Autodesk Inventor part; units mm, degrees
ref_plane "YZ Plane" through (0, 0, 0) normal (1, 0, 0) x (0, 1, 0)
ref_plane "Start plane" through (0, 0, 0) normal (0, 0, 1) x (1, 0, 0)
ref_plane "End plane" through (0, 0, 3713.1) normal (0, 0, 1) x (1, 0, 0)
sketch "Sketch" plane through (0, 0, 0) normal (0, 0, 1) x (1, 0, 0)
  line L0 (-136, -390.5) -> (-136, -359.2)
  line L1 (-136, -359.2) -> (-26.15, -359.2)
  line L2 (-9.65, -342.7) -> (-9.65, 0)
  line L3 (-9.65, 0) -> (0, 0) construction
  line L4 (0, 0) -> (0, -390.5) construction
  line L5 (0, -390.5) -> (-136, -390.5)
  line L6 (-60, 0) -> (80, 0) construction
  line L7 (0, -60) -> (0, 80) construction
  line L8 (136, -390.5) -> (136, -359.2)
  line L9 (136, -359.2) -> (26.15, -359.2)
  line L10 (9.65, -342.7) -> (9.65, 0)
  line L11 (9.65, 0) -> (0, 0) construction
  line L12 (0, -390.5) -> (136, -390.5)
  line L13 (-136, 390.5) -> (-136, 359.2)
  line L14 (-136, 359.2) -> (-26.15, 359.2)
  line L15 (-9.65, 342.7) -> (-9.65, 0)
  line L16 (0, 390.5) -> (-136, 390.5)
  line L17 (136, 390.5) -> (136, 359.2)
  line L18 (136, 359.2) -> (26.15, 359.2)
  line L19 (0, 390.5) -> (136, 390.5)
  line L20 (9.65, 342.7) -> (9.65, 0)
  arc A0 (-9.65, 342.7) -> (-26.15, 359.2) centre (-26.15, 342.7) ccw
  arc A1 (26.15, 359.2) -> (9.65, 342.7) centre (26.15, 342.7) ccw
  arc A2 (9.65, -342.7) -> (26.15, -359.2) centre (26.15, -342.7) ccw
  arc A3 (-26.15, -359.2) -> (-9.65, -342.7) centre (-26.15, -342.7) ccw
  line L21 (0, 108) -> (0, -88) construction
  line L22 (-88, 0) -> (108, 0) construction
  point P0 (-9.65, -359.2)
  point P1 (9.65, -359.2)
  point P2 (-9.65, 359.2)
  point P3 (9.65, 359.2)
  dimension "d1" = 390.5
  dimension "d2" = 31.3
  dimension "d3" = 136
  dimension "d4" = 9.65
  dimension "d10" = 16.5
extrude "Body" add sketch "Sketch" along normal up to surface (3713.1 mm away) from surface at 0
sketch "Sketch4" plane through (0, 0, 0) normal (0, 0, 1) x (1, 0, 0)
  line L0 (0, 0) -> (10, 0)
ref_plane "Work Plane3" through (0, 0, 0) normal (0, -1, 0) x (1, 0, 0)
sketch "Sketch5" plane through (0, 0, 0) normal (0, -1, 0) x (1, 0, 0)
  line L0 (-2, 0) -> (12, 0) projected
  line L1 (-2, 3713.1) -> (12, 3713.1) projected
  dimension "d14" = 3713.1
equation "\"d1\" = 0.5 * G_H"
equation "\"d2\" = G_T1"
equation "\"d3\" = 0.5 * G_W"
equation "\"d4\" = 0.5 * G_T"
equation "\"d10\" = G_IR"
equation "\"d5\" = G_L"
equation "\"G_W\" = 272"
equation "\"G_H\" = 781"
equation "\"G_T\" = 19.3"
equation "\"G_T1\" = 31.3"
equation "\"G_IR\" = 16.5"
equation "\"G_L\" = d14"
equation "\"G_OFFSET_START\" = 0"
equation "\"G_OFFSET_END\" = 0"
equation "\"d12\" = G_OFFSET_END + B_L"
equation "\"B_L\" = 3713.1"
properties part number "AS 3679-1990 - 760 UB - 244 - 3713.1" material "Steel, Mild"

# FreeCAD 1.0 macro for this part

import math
import FreeCAD as App
import Part
import Sketcher
Q = App.Units.Quantity

doc = App.newDocument("Part")
body = doc.addObject("PartDesign::Body", "Body")

sketch1 = body.newObject("Sketcher::SketchObject", "Sketch")
sketch1.AttachmentSupport = (doc.getObject("XY_Plane"), [""])
sketch1.MapMode = "FlatFace"
sketch1.addGeometry([
    Part.LineSegment(App.Vector(-136, -359.2, 0), App.Vector(-136, -390.5, 0)),
    Part.LineSegment(App.Vector(-136, -390.5, 0), App.Vector(136, -390.5, 0)),
    Part.LineSegment(App.Vector(136, -390.5, 0), App.Vector(136, -359.2, 0)),
    Part.LineSegment(App.Vector(136, -359.2, 0), App.Vector(26.15, -359.2, 0)),
    Part.ArcOfCircle(Part.Circle(App.Vector(26.15, -342.7, 0), App.Vector(0, 0, 1), 16.5), math.radians(180), math.radians(270)),
    Part.LineSegment(App.Vector(9.65, -342.7, 0), App.Vector(9.65, 342.7, 0)),
    Part.ArcOfCircle(Part.Circle(App.Vector(26.15, 342.7, 0), App.Vector(0, 0, 1), 16.5), math.radians(90), math.radians(180)),
    Part.LineSegment(App.Vector(26.15, 359.2, 0), App.Vector(136, 359.2, 0)),
    Part.LineSegment(App.Vector(136, 359.2, 0), App.Vector(136, 390.5, 0)),
    Part.LineSegment(App.Vector(136, 390.5, 0), App.Vector(-136, 390.5, 0)),
    Part.LineSegment(App.Vector(-136, 390.5, 0), App.Vector(-136, 359.2, 0)),
    Part.LineSegment(App.Vector(-136, 359.2, 0), App.Vector(-26.15, 359.2, 0)),
    Part.ArcOfCircle(Part.Circle(App.Vector(-26.15, 342.7, 0), App.Vector(0, 0, 1), 16.5), math.radians(0), math.radians(90)),
    Part.LineSegment(App.Vector(-9.65, 342.7, 0), App.Vector(-9.65, -342.7, 0)),
    Part.ArcOfCircle(Part.Circle(App.Vector(-26.15, -342.7, 0), App.Vector(0, 0, 1), 16.5), math.radians(-90), math.radians(0)),
    Part.LineSegment(App.Vector(-26.15, -359.2, 0), App.Vector(-136, -359.2, 0)),
], False)
sketch1.addConstraint([
    Sketcher.Constraint("Coincident", 0, 2, 1, 1),
    Sketcher.Constraint("Coincident", 1, 2, 2, 1),
    Sketcher.Constraint("Coincident", 2, 2, 3, 1),
    Sketcher.Constraint("Tangent", 3, 2, 4, 2),
    Sketcher.Constraint("Tangent", 4, 1, 5, 1),
    Sketcher.Constraint("Tangent", 5, 2, 6, 2),
    Sketcher.Constraint("Tangent", 6, 1, 7, 1),
    Sketcher.Constraint("Coincident", 7, 2, 8, 1),
    Sketcher.Constraint("Coincident", 8, 2, 9, 1),
    Sketcher.Constraint("Coincident", 9, 2, 10, 1),
    Sketcher.Constraint("Coincident", 10, 2, 11, 1),
    Sketcher.Constraint("Tangent", 11, 2, 12, 2),
    Sketcher.Constraint("Tangent", 12, 1, 13, 1),
    Sketcher.Constraint("Tangent", 13, 2, 14, 2),
    Sketcher.Constraint("Tangent", 14, 1, 15, 1),
    Sketcher.Constraint("Coincident", 15, 2, 0, 1),
    Sketcher.Constraint("Vertical", 0),
    Sketcher.Constraint("Horizontal", 1),
    Sketcher.Constraint("Vertical", 2),
    Sketcher.Constraint("Horizontal", 3),
    Sketcher.Constraint("Vertical", 5),
    Sketcher.Constraint("Horizontal", 7),
    Sketcher.Constraint("Vertical", 8),
    Sketcher.Constraint("Horizontal", 9),
    Sketcher.Constraint("Vertical", 10),
    Sketcher.Constraint("Horizontal", 11),
    Sketcher.Constraint("Vertical", 13),
    Sketcher.Constraint("Horizontal", 15),
    Sketcher.Constraint("Equal", 4, 6),
    Sketcher.Constraint("Equal", 6, 12),
    Sketcher.Constraint("Equal", 12, 14),
    Sketcher.Constraint("Symmetric", 4, 3, 12, 3, -1, 1),
    Sketcher.Constraint("Symmetric", 0, 2, 8, 2, -1, 1),
    Sketcher.Constraint("Symmetric", 7, 2, 10, 2, -2),
    Sketcher.Constraint("Symmetric", 2, 2, 15, 2, -2),
    Sketcher.Constraint("Radius", 4, Q("16.5 mm")),
    Sketcher.Constraint("DistanceY", 0, 2, 0, 1, Q("31.3 mm")),
    Sketcher.Constraint("DistanceX", 0, 2, -1, 1, Q("136 mm")),
    Sketcher.Constraint("DistanceY", 0, 2, -1, 1, Q("390.5 mm")),
    Sketcher.Constraint("DistanceX", -1, 1, 4, 1, Q("9.65 mm")),
])
pad1 = body.newObject("PartDesign::Pad", "Pad")
pad1.Profile = sketch1
pad1.Length = 3713.1

doc.recompute()
